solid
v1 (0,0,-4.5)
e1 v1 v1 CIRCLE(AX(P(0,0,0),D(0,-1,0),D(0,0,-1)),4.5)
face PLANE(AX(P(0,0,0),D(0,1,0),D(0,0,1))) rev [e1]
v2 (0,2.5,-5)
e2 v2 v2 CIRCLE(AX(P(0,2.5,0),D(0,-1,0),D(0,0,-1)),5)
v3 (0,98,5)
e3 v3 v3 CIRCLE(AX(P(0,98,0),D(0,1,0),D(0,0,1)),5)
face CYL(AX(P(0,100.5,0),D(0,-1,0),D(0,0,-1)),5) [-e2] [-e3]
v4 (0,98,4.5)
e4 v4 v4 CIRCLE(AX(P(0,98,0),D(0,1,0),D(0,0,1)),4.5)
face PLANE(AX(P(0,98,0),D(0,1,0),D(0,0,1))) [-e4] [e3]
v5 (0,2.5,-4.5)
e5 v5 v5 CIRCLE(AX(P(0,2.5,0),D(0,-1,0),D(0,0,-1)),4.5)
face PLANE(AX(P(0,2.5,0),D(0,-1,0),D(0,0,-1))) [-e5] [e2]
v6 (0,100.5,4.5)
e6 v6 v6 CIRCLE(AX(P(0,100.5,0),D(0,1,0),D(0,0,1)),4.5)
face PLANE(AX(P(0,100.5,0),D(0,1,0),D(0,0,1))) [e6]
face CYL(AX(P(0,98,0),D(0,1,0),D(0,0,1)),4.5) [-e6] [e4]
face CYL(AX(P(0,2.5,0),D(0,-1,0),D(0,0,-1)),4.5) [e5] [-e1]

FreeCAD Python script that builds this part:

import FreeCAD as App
import Part
import Sketcher

V = App.Vector

doc = App.newDocument("Part")
body = doc.addObject("PartDesign::Body", "Body")

# Sketch on XZ plane
sketch1 = body.newObject("Sketcher::SketchObject", "Sketch")
sketch1.AttachmentSupport = (doc.getObject("XZ_Plane"), [""])
sketch1.MapMode = "FlatFace"
sketch1.addGeometry(Part.Circle(V(0, 0, 0), V(0, 0, 1), 5), False)
sketch1.addConstraint([
    Sketcher.Constraint("Coincident", 0, 3, -1, 1),
    Sketcher.Constraint("Diameter", 0, 10.0),
])
pad1 = body.newObject("PartDesign::Pad", "Pad")
pad1.Profile = sketch1
pad1.Length = 100.5
pad1.Reversed = True

# Sketch on XZ plane
sketch2 = body.newObject("Sketcher::SketchObject", "Sketch001")
sketch2.AttachmentSupport = (doc.getObject("XZ_Plane"), [""])
sketch2.MapMode = "FlatFace"
sketch2.addGeometry([
    Part.Circle(V(0, 0, 0), V(0, 0, 1), 5),
    Part.Circle(V(0, 0, 0), V(0, 0, 1), 4.5),
], False)
sketch2.addConstraint([
    Sketcher.Constraint("Coincident", 0, 3, -1, 1),
    Sketcher.Constraint("Coincident", 1, 3, -1, 1),
    Sketcher.Constraint("Diameter", 0, 10.0),
    Sketcher.Constraint("Diameter", 1, 9.0),
])
pocket1 = body.newObject("PartDesign::Pocket", "Pocket")
pocket1.Profile = sketch2
pocket1.Length = 2.5

# Sketch on XZ plane
sketch3 = body.newObject("Sketcher::SketchObject", "Sketch002")
sketch3.AttachmentSupport = (doc.getObject("XZ_Plane"), [""])
sketch3.MapMode = "FlatFace"
sketch3.AttachmentOffset = App.Placement(V(0, 0, -100.5), App.Rotation())
sketch3.addGeometry([
    Part.Circle(V(0, 0, 0), V(0, 0, 1), 5),
    Part.Circle(V(0, 0, 0), V(0, 0, 1), 4.5),
], False)
sketch3.addConstraint([
    Sketcher.Constraint("Coincident", 0, 3, -1, 1),
    Sketcher.Constraint("Coincident", 1, 3, -1, 1),
    Sketcher.Constraint("Diameter", 0, 10.0),
    Sketcher.Constraint("Diameter", 1, 9.0),
])
pocket2 = body.newObject("PartDesign::Pocket", "Pocket001")
pocket2.Profile = sketch3
pocket2.Length = 2.5
pocket2.Reversed = True

doc.recompute()
